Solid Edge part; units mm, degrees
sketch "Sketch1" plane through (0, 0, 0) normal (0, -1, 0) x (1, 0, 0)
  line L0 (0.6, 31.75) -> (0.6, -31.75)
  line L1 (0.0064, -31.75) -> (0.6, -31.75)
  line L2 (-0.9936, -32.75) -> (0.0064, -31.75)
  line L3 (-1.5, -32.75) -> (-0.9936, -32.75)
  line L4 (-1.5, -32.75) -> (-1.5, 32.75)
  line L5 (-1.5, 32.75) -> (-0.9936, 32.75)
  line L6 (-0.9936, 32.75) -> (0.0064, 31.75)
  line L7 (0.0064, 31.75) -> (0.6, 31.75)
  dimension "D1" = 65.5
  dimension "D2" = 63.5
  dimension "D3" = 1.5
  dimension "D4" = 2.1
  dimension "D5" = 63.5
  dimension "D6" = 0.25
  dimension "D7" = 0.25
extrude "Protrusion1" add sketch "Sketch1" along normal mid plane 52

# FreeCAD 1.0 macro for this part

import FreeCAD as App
import Part
import Sketcher
from FreeCAD import Vector
Q = App.Units.Quantity


def add_polygon(sketch, points):
    """Adds a closed chain of lines whose ends are joined by coincident constraints."""
    first, n = sketch.GeometryCount, len(points)
    for a, b in zip(points, points[1:] + points[:1]):
        sketch.addGeometry(Part.LineSegment(App.Vector(*a, 0), App.Vector(*b, 0)), False)
    for i in range(n):
        sketch.addConstraint(Sketcher.Constraint("Coincident", first + i, 2, first + (i + 1) % n, 1))

doc = App.newDocument("Part")
body = doc.addObject("PartDesign::Body", "Body")

sketch1 = doc.addObject("Sketcher::SketchObject", "Sketch")
body.addObject(sketch1)
sketch1.AttachmentSupport = (doc.XZ_Plane, [""])
sketch1.MapMode = "FlatFace"
add_polygon(sketch1, [(0.6, -31.8), (0.6, 31.8), (0, 31.8), (-1, 32.8), (-1.5, 32.8), (-1.5, -32.8), (-1, -32.8), (0, -31.8)])
sketch1.addConstraint([
    Sketcher.Constraint("Vertical", 0),
    Sketcher.Constraint("Horizontal", 1),
    Sketcher.Constraint("Horizontal", 3),
    Sketcher.Constraint("Vertical", 4),
    Sketcher.Constraint("Horizontal", 5),
    Sketcher.Constraint("Horizontal", 7),
    Sketcher.Constraint("Symmetric", 2, 2, 5, 2, -1),
    Sketcher.Constraint("Symmetric", 1, 2, 6, 2, -1),
    Sketcher.Constraint("Perpendicular", 2, 6),
    Sketcher.Constraint("DistanceX", -1, 1, 0, 2, Q("0.6 mm")),
    Sketcher.Constraint("DistanceX", 3, 2, -1, 1, Q("1.5 mm")),
    Sketcher.Constraint("DistanceY", 0, 1, 0, 2, Q("63.5 mm")),
    Sketcher.Constraint("DistanceY", 4, 2, 4, 1, Q("65.5 mm")),
    Sketcher.Constraint("DistanceX", 1, 2, 1, 1, Q("0.5936 mm")),
])
pad1 = doc.addObject("PartDesign::Pad", "Pad")
body.addObject(pad1)
pad1.Profile = sketch1
pad1.Length = 52
pad1.Midplane = True

doc.recompute()
